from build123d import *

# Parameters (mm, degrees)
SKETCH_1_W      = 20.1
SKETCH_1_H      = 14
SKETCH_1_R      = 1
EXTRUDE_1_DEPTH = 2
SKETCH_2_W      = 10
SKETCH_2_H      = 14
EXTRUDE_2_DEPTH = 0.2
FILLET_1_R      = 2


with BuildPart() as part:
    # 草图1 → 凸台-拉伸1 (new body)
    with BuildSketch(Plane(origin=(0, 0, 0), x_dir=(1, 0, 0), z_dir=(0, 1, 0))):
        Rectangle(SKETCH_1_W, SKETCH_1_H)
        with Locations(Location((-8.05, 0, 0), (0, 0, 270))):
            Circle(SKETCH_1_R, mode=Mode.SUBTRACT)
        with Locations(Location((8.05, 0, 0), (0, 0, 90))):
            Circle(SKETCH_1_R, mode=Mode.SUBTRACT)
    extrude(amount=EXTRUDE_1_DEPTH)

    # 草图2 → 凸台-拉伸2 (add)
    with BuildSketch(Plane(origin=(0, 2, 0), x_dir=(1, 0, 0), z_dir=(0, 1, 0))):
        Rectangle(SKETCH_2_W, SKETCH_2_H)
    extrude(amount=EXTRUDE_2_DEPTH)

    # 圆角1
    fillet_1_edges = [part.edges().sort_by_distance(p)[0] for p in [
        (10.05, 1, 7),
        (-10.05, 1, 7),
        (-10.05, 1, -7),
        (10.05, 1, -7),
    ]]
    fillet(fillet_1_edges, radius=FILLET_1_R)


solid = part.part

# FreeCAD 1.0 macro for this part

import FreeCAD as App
import Part
import Sketcher


def edges_at(feature, points):
    """Names of the edges that pass closest to the given points."""
    edges = feature.Shape.Edges
    near = lambda p: min(range(len(edges)), key=lambda i: edges[i].distToShape(Part.Vertex(*p))[0])
    return sorted({f"Edge{near(p) + 1}" for p in points})


def add_polygon(sketch, points):
    """Adds a closed chain of lines whose ends are joined by coincident constraints."""
    first, n = sketch.GeometryCount, len(points)
    for a, b in zip(points, points[1:] + points[:1]):
        sketch.addGeometry(Part.LineSegment(App.Vector(*a, 0), App.Vector(*b, 0)), False)
    for i in range(n):
        sketch.addConstraint(Sketcher.Constraint("Coincident", first + i, 2, first + (i + 1) % n, 1))

doc = App.newDocument("Part")
body = doc.addObject("PartDesign::Body", "Body")

sketch1 = doc.addObject("Sketcher::SketchObject", "Sketch")
body.addObject(sketch1)
sketch1.AttachmentSupport = (doc.XZ_Plane, [""])
sketch1.MapMode = "FlatFace"
add_polygon(sketch1, [(-10.05, -7), (-10.05, 7), (10.05, 7), (10.05, -7)])
sketch1.addGeometry(Part.Circle(App.Vector(-8.05, 0, 0), App.Vector(0, 0, 1), 1), False)
sketch1.addGeometry(Part.Circle(App.Vector(8.05, 0, 0), App.Vector(0, 0, 1), 1), False)
sketch1.addConstraint([
    Sketcher.Constraint("Vertical", 0),
    Sketcher.Constraint("Horizontal", 1),
    Sketcher.Constraint("Vertical", 2),
    Sketcher.Constraint("Horizontal", 3),
    Sketcher.Constraint("Equal", 4, 5),
    Sketcher.Constraint("Symmetric", 4, 3, 5, 3, -1, 1),
    Sketcher.Constraint("Symmetric", 0, 2, 2, 2, -1, 1),
    Sketcher.Constraint("PointOnObject", 4, 3, -1),
    Sketcher.Constraint("Diameter", 4, 2.0),
    Sketcher.Constraint("DistanceY", 0, 1, 0, 2, 14.0),
    Sketcher.Constraint("DistanceX", 1, 1, 1, 2, 20.1),
    Sketcher.Constraint("DistanceX", 0, 2, 4, 3, 2.0),
])
pad1 = doc.addObject("PartDesign::Pad", "Pad")
body.addObject(pad1)
pad1.Profile = sketch1
pad1.Length = 2
pad1.Reversed = True

sketch2 = doc.addObject("Sketcher::SketchObject", "Sketch001")
body.addObject(sketch2)
sketch2.AttachmentSupport = (doc.XZ_Plane, [""])
sketch2.MapMode = "FlatFace"
sketch2.AttachmentOffset = App.Placement(App.Vector(0, 0, -2), App.Rotation())
add_polygon(sketch2, [(-5, -7), (-5, 7), (5, 7), (5, -7)])
sketch2.addConstraint([
    Sketcher.Constraint("Vertical", 0),
    Sketcher.Constraint("Horizontal", 1),
    Sketcher.Constraint("Vertical", 2),
    Sketcher.Constraint("Horizontal", 3),
    Sketcher.Constraint("Symmetric", 0, 2, 2, 2, -1, 1),
    Sketcher.Constraint("DistanceX", 1, 1, 1, 2, 10.0),
    Sketcher.Constraint("DistanceY", 0, 1, 0, 2, 14.0),
])
pad2 = doc.addObject("PartDesign::Pad", "Pad001")
body.addObject(pad2)
pad2.Profile = sketch2
pad2.Length = 0.2
pad2.Reversed = True
doc.recompute()

fillet = doc.addObject("PartDesign::Fillet", "Fillet")
body.addObject(fillet)
fillet.Base = (pad2, edges_at(pad2, [
    (10.05, 1, 7),
    (-10.05, 1, 7),
    (-10.05, 1, -7),
    (10.05, 1, -7),
]))
fillet.Radius = 2

doc.recompute()
